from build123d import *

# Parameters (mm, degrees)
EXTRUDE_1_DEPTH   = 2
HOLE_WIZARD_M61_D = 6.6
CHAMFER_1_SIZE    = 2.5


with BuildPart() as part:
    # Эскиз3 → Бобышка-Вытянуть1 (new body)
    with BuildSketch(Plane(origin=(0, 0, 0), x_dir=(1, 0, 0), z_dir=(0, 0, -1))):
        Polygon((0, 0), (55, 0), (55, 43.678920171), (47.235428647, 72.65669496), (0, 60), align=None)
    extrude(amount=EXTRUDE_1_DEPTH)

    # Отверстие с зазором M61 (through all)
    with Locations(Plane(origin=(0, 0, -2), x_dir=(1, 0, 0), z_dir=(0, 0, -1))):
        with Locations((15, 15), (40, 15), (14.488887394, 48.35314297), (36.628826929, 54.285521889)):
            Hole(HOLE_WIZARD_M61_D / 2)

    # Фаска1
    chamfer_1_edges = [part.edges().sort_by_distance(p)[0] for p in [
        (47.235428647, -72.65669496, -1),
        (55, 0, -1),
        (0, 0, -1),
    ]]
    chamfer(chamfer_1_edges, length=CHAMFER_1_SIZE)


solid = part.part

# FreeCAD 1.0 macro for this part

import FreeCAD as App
import Part
import Sketcher
from FreeCAD import Vector
Q = App.Units.Quantity


def edges_at(feature, points):
    """Names of the edges that pass closest to the given points."""
    edges = feature.Shape.Edges
    near = lambda p: min(range(len(edges)), key=lambda i: edges[i].distToShape(Part.Vertex(*p))[0])
    return sorted({f"Edge{near(p) + 1}" for p in points})


def add_polygon(sketch, points):
    """Adds a closed chain of lines whose ends are joined by coincident constraints."""
    first, n = sketch.GeometryCount, len(points)
    for a, b in zip(points, points[1:] + points[:1]):
        sketch.addGeometry(Part.LineSegment(App.Vector(*a, 0), App.Vector(*b, 0)), False)
    for i in range(n):
        sketch.addConstraint(Sketcher.Constraint("Coincident", first + i, 2, first + (i + 1) % n, 1))

doc = App.newDocument("Part")
body = doc.addObject("PartDesign::Body", "Body")

sketch1 = body.newObject("Sketcher::SketchObject", "Sketch")
sketch1.AttachmentSupport = (doc.getObject("XY_Plane"), [""])
sketch1.MapMode = "FlatFace"
add_polygon(sketch1, [(0, 0), (55, 0), (55, -44), (47, -73), (0, -60)])
sketch1.addConstraint([
    Sketcher.Constraint("Horizontal", 0),
    Sketcher.Constraint("Vertical", 1),
    Sketcher.Constraint("Vertical", 4),
    Sketcher.Constraint("Coincident", 4, 2, -1, 1),
    Sketcher.Constraint("Perpendicular", 2, 3),
    Sketcher.Constraint("DistanceX", 0, 1, 0, 2, Q("55 mm")),
    Sketcher.Constraint("DistanceY", 4, 1, 4, 2, Q("60 mm")),
    Sketcher.Constraint("Angle", 2, Q("-105 deg")),
    Sketcher.Constraint("Distance", 2, Q("30 mm")),
])
pad1 = body.newObject("PartDesign::Pad", "Pad")
pad1.Profile = sketch1
pad1.Length = 2
pad1.Reversed = True

sketch2 = body.newObject("Sketcher::SketchObject", "Sketch001")
sketch2.AttachmentSupport = (doc.getObject("XY_Plane"), [""])
sketch2.MapMode = "FlatFace"
sketch2.AttachmentOffset = App.Placement(Vector(0, 0, -2), App.Rotation())
sketch2.addGeometry([
    Part.Circle(Vector(15, -15, 0), Vector(0, 0, 1), 3.3),
    Part.Circle(Vector(40, -15, 0), Vector(0, 0, 1), 3.3),
    Part.Circle(Vector(14.5, -48.4, 0), Vector(0, 0, 1), 3.3),
    Part.Circle(Vector(36.6, -54.3, 0), Vector(0, 0, 1), 3.3),
], False)
sketch2.addConstraint([
    Sketcher.Constraint("Equal", 0, 1),
    Sketcher.Constraint("Equal", 1, 2),
    Sketcher.Constraint("Equal", 2, 3),
    Sketcher.Constraint("Horizontal", 0, 3, 1, 3),
    Sketcher.Constraint("Diameter", 0, Q("6.6 mm")),
    Sketcher.Constraint("DistanceX", -1, 1, 0, 3, Q("15 mm")),
    Sketcher.Constraint("DistanceY", 0, 3, -1, 1, Q("15 mm")),
    Sketcher.Constraint("DistanceX", -1, 1, 1, 3, Q("40 mm")),
    Sketcher.Constraint("DistanceY", 3, 3, -1, 1, Q("54.285522 mm")),
    Sketcher.Constraint("DistanceX", 2, 3, 3, 3, Q("22.13994 mm")),
    Sketcher.Constraint("DistanceY", 3, 3, 2, 3, Q("5.932379 mm")),
    Sketcher.Constraint("DistanceX", -1, 1, 2, 3, Q("14.488887 mm")),
])
doc.recompute()
hole = body.newObject("PartDesign::Hole", "Hole")
hole.Profile = sketch2
hole.ThreadType = "None"
hole.Diameter = 6.6
hole.DepthType = "ThroughAll"
hole.Reversed = True
doc.recompute()

chamfer = body.newObject("PartDesign::Chamfer", "Chamfer")
chamfer.Base = (hole, edges_at(hole, [(47.235, -72.657, -1), (55, 0, -1), (0, 0, -1)]))
chamfer.Size = 2.5

doc.recompute()
